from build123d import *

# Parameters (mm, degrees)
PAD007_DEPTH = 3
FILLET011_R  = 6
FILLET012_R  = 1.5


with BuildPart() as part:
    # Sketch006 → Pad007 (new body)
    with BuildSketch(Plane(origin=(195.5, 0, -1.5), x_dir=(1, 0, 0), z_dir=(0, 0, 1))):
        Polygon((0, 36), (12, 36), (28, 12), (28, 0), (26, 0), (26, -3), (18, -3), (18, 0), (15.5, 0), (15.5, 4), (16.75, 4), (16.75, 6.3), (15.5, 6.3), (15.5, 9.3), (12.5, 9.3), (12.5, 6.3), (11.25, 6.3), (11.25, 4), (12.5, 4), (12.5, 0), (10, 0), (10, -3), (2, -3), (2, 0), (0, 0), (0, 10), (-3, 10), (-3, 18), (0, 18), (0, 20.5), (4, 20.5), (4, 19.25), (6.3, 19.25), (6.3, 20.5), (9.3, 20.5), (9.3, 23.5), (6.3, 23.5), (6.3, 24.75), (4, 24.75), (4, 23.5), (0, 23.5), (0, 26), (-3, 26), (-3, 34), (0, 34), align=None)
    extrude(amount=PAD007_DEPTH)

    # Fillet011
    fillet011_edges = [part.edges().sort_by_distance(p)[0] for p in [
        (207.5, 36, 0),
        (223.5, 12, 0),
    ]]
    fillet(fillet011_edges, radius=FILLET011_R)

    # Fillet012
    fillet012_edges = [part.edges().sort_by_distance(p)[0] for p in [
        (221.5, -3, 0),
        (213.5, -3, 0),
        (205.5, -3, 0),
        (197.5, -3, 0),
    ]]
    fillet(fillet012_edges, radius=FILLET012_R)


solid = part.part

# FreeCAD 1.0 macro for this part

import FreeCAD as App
import Part
import Sketcher
from FreeCAD import Vector
Q = App.Units.Quantity


def edges_at(feature, points):
    """Names of the edges that pass closest to the given points."""
    edges = feature.Shape.Edges
    near = lambda p: min(range(len(edges)), key=lambda i: edges[i].distToShape(Part.Vertex(*p))[0])
    return sorted({f"Edge{near(p) + 1}" for p in points})

doc = App.newDocument("Part")
body = doc.addObject("PartDesign::Body", "Body")

# Sketch on XY plane
sketch1 = doc.addObject("Sketcher::SketchObject", "Sketch")
body.addObject(sketch1)
sketch1.AttachmentSupport = (doc.XY_Plane, [""])
sketch1.MapMode = "FlatFace"
sketch1.AttachmentOffset = App.Placement(Vector(0, 0, -1.5), App.Rotation())
sketch1.addGeometry(Part.LineSegment(Vector(207.5, 36, 0), Vector(195.5, 36, 0)), False)
sketch1.addGeometry(Part.LineSegment(Vector(195.5, 36, 0), Vector(195.5, 34, 0)), False)
sketch1.addGeometry(Part.LineSegment(Vector(195.5, 34, 0), Vector(192.5, 34, 0)), False)
sketch1.addGeometry(Part.LineSegment(Vector(192.5, 34, 0), Vector(192.5, 26, 0)), False)
sketch1.addGeometry(Part.LineSegment(Vector(192.5, 26, 0), Vector(195.5, 26, 0)), False)
sketch1.addGeometry(Part.LineSegment(Vector(195.5, 26, 0), Vector(195.5, 23.5, 0)), False)
sketch1.addGeometry(Part.LineSegment(Vector(195.5, 23.5, 0), Vector(199.5, 23.5, 0)), False)
sketch1.addGeometry(Part.LineSegment(Vector(199.5, 23.5, 0), Vector(199.5, 24.75, 0)), False)
sketch1.addGeometry(Part.LineSegment(Vector(199.5, 24.75, 0), Vector(201.8, 24.75, 0)), False)
sketch1.addGeometry(Part.LineSegment(Vector(201.8, 24.75, 0), Vector(201.8, 23.5, 0)), False)
sketch1.addGeometry(Part.LineSegment(Vector(201.8, 23.5, 0), Vector(204.8, 23.5, 0)), False)
sketch1.addGeometry(Part.LineSegment(Vector(204.8, 23.5, 0), Vector(204.8, 20.5, 0)), False)
sketch1.addGeometry(Part.LineSegment(Vector(204.8, 20.5, 0), Vector(201.8, 20.5, 0)), False)
sketch1.addGeometry(Part.LineSegment(Vector(201.8, 20.5, 0), Vector(201.8, 19.25, 0)), False)
sketch1.addGeometry(Part.LineSegment(Vector(201.8, 19.25, 0), Vector(199.5, 19.25, 0)), False)
sketch1.addGeometry(Part.LineSegment(Vector(199.5, 19.25, 0), Vector(199.5, 20.5, 0)), False)
sketch1.addGeometry(Part.LineSegment(Vector(199.5, 20.5, 0), Vector(195.5, 20.5, 0)), False)
sketch1.addGeometry(Part.LineSegment(Vector(195.5, 20.5, 0), Vector(195.5, 18, 0)), False)
sketch1.addGeometry(Part.LineSegment(Vector(195.5, 18, 0), Vector(192.5, 18, 0)), False)
sketch1.addGeometry(Part.LineSegment(Vector(192.5, 18, 0), Vector(192.5, 10, 0)), False)
sketch1.addGeometry(Part.LineSegment(Vector(192.5, 10, 0), Vector(195.5, 10, 0)), False)
sketch1.addGeometry(Part.LineSegment(Vector(195.5, 10, 0), Vector(195.5, 0, 0)), False)
sketch1.addGeometry(Part.LineSegment(Vector(195.5, 0, 0), Vector(197.5, 0, 0)), False)
sketch1.addGeometry(Part.LineSegment(Vector(197.5, 0, 0), Vector(197.5, -3, 0)), False)
sketch1.addGeometry(Part.LineSegment(Vector(197.5, -3, 0), Vector(205.5, -3, 0)), False)
sketch1.addGeometry(Part.LineSegment(Vector(205.5, -3, 0), Vector(205.5, 0, 0)), False)
sketch1.addGeometry(Part.LineSegment(Vector(205.5, 0, 0), Vector(208, 0, 0)), False)
sketch1.addGeometry(Part.LineSegment(Vector(208, 0, 0), Vector(208, 4, 0)), False)
sketch1.addGeometry(Part.LineSegment(Vector(208, 4, 0), Vector(206.75, 4, 0)), False)
sketch1.addGeometry(Part.LineSegment(Vector(206.75, 4, 0), Vector(206.75, 6.3, 0)), False)
sketch1.addGeometry(Part.LineSegment(Vector(206.75, 6.3, 0), Vector(208, 6.3, 0)), False)
sketch1.addGeometry(Part.LineSegment(Vector(208, 6.3, 0), Vector(208, 9.3, 0)), False)
sketch1.addGeometry(Part.LineSegment(Vector(208, 9.3, 0), Vector(211, 9.3, 0)), False)
sketch1.addGeometry(Part.LineSegment(Vector(211, 9.3, 0), Vector(211, 6.3, 0)), False)
sketch1.addGeometry(Part.LineSegment(Vector(211, 6.3, 0), Vector(212.25, 6.3, 0)), False)
sketch1.addGeometry(Part.LineSegment(Vector(212.25, 6.3, 0), Vector(212.25, 4, 0)), False)
sketch1.addGeometry(Part.LineSegment(Vector(212.25, 4, 0), Vector(211, 4, 0)), False)
sketch1.addGeometry(Part.LineSegment(Vector(211, 4, 0), Vector(211, 0, 0)), False)
sketch1.addGeometry(Part.LineSegment(Vector(211, 0, 0), Vector(213.5, 0, 0)), False)
sketch1.addGeometry(Part.LineSegment(Vector(213.5, 0, 0), Vector(213.5, -3, 0)), False)
sketch1.addGeometry(Part.LineSegment(Vector(213.5, -3, 0), Vector(221.5, -3, 0)), False)
sketch1.addGeometry(Part.LineSegment(Vector(221.5, -3, 0), Vector(221.5, 0, 0)), False)
sketch1.addGeometry(Part.LineSegment(Vector(221.5, 0, 0), Vector(223.5, 0, 0)), False)
sketch1.addGeometry(Part.LineSegment(Vector(223.5, 0, 0), Vector(223.5, 12, 0)), False)
sketch1.addGeometry(Part.LineSegment(Vector(223.5, 12, 0), Vector(207.5, 36, 0)), False)
sketch1.addConstraint(Sketcher.Constraint("Coincident", 0, 2, 1, 1))
sketch1.addConstraint(Sketcher.Constraint("Coincident", 1, 2, 2, 1))
sketch1.addConstraint(Sketcher.Constraint("Coincident", 2, 2, 3, 1))
sketch1.addConstraint(Sketcher.Constraint("Coincident", 3, 2, 4, 1))
sketch1.addConstraint(Sketcher.Constraint("Coincident", 4, 2, 5, 1))
sketch1.addConstraint(Sketcher.Constraint("Coincident", 5, 2, 6, 1))
sketch1.addConstraint(Sketcher.Constraint("Coincident", 6, 2, 7, 1))
sketch1.addConstraint(Sketcher.Constraint("Coincident", 7, 2, 8, 1))
sketch1.addConstraint(Sketcher.Constraint("Coincident", 8, 2, 9, 1))
sketch1.addConstraint(Sketcher.Constraint("Coincident", 9, 2, 10, 1))
sketch1.addConstraint(Sketcher.Constraint("Coincident", 10, 2, 11, 1))
sketch1.addConstraint(Sketcher.Constraint("Coincident", 11, 2, 12, 1))
sketch1.addConstraint(Sketcher.Constraint("Coincident", 12, 2, 13, 1))
sketch1.addConstraint(Sketcher.Constraint("Coincident", 13, 2, 14, 1))
sketch1.addConstraint(Sketcher.Constraint("Coincident", 14, 2, 15, 1))
sketch1.addConstraint(Sketcher.Constraint("Coincident", 15, 2, 16, 1))
sketch1.addConstraint(Sketcher.Constraint("Coincident", 16, 2, 17, 1))
sketch1.addConstraint(Sketcher.Constraint("Coincident", 17, 2, 18, 1))
sketch1.addConstraint(Sketcher.Constraint("Coincident", 18, 2, 19, 1))
sketch1.addConstraint(Sketcher.Constraint("Coincident", 19, 2, 20, 1))
sketch1.addConstraint(Sketcher.Constraint("Coincident", 20, 2, 21, 1))
sketch1.addConstraint(Sketcher.Constraint("Coincident", 21, 2, 22, 1))
sketch1.addConstraint(Sketcher.Constraint("Coincident", 22, 2, 23, 1))
sketch1.addConstraint(Sketcher.Constraint("Coincident", 23, 2, 24, 1))
sketch1.addConstraint(Sketcher.Constraint("Coincident", 24, 2, 25, 1))
sketch1.addConstraint(Sketcher.Constraint("Coincident", 25, 2, 26, 1))
sketch1.addConstraint(Sketcher.Constraint("Coincident", 26, 2, 27, 1))
sketch1.addConstraint(Sketcher.Constraint("Coincident", 27, 2, 28, 1))
sketch1.addConstraint(Sketcher.Constraint("Coincident", 28, 2, 29, 1))
sketch1.addConstraint(Sketcher.Constraint("Coincident", 29, 2, 30, 1))
sketch1.addConstraint(Sketcher.Constraint("Coincident", 30, 2, 31, 1))
sketch1.addConstraint(Sketcher.Constraint("Coincident", 31, 2, 32, 1))
sketch1.addConstraint(Sketcher.Constraint("Coincident", 32, 2, 33, 1))
sketch1.addConstraint(Sketcher.Constraint("Coincident", 33, 2, 34, 1))
sketch1.addConstraint(Sketcher.Constraint("Coincident", 34, 2, 35, 1))
sketch1.addConstraint(Sketcher.Constraint("Coincident", 35, 2, 36, 1))
sketch1.addConstraint(Sketcher.Constraint("Coincident", 36, 2, 37, 1))
sketch1.addConstraint(Sketcher.Constraint("Coincident", 37, 2, 38, 1))
sketch1.addConstraint(Sketcher.Constraint("Coincident", 38, 2, 39, 1))
sketch1.addConstraint(Sketcher.Constraint("Coincident", 39, 2, 40, 1))
sketch1.addConstraint(Sketcher.Constraint("Coincident", 40, 2, 41, 1))
sketch1.addConstraint(Sketcher.Constraint("Coincident", 41, 2, 42, 1))
sketch1.addConstraint(Sketcher.Constraint("Coincident", 42, 2, 43, 1))
sketch1.addConstraint(Sketcher.Constraint("Coincident", 43, 2, 44, 1))
sketch1.addConstraint(Sketcher.Constraint("Coincident", 44, 2, 0, 1))
sketch1.addConstraint(Sketcher.Constraint("Horizontal", 0))
sketch1.addConstraint(Sketcher.Constraint("Vertical", 1))
sketch1.addConstraint(Sketcher.Constraint("Horizontal", 2))
sketch1.addConstraint(Sketcher.Constraint("Vertical", 3))
sketch1.addConstraint(Sketcher.Constraint("Horizontal", 4))
sketch1.addConstraint(Sketcher.Constraint("Vertical", 5))
sketch1.addConstraint(Sketcher.Constraint("Horizontal", 6))
sketch1.addConstraint(Sketcher.Constraint("Vertical", 7))
sketch1.addConstraint(Sketcher.Constraint("Horizontal", 8))
sketch1.addConstraint(Sketcher.Constraint("Vertical", 9))
sketch1.addConstraint(Sketcher.Constraint("Horizontal", 10))
sketch1.addConstraint(Sketcher.Constraint("Vertical", 11))
sketch1.addConstraint(Sketcher.Constraint("Horizontal", 12))
sketch1.addConstraint(Sketcher.Constraint("Vertical", 13))
sketch1.addConstraint(Sketcher.Constraint("Horizontal", 14))
sketch1.addConstraint(Sketcher.Constraint("Vertical", 15))
sketch1.addConstraint(Sketcher.Constraint("Horizontal", 16))
sketch1.addConstraint(Sketcher.Constraint("Vertical", 17))
sketch1.addConstraint(Sketcher.Constraint("Horizontal", 18))
sketch1.addConstraint(Sketcher.Constraint("Vertical", 19))
sketch1.addConstraint(Sketcher.Constraint("Horizontal", 20))
sketch1.addConstraint(Sketcher.Constraint("Vertical", 21))
sketch1.addConstraint(Sketcher.Constraint("Horizontal", 22))
sketch1.addConstraint(Sketcher.Constraint("Vertical", 23))
sketch1.addConstraint(Sketcher.Constraint("Horizontal", 24))
sketch1.addConstraint(Sketcher.Constraint("Vertical", 25))
sketch1.addConstraint(Sketcher.Constraint("Horizontal", 26))
sketch1.addConstraint(Sketcher.Constraint("Vertical", 27))
sketch1.addConstraint(Sketcher.Constraint("Horizontal", 28))
sketch1.addConstraint(Sketcher.Constraint("Vertical", 29))
sketch1.addConstraint(Sketcher.Constraint("Horizontal", 30))
sketch1.addConstraint(Sketcher.Constraint("Vertical", 31))
sketch1.addConstraint(Sketcher.Constraint("Horizontal", 32))
sketch1.addConstraint(Sketcher.Constraint("Vertical", 33))
sketch1.addConstraint(Sketcher.Constraint("Horizontal", 34))
sketch1.addConstraint(Sketcher.Constraint("Vertical", 35))
sketch1.addConstraint(Sketcher.Constraint("Horizontal", 36))
sketch1.addConstraint(Sketcher.Constraint("Vertical", 37))
sketch1.addConstraint(Sketcher.Constraint("Horizontal", 38))
sketch1.addConstraint(Sketcher.Constraint("Vertical", 39))
sketch1.addConstraint(Sketcher.Constraint("Horizontal", 40))
sketch1.addConstraint(Sketcher.Constraint("Vertical", 41))
sketch1.addConstraint(Sketcher.Constraint("Horizontal", 42))
sketch1.addConstraint(Sketcher.Constraint("Vertical", 43))
sketch1.addConstraint(Sketcher.Constraint("PointOnObject", 21, 2, -1))
sketch1.addConstraint(Sketcher.Constraint("PointOnObject", 25, 2, -1))
sketch1.addConstraint(Sketcher.Constraint("PointOnObject", 37, 2, -1))
sketch1.addConstraint(Sketcher.Constraint("PointOnObject", 41, 2, -1))
sketch1.addConstraint(Sketcher.Constraint("Horizontal", 6, 2, 9, 2))
sketch1.addConstraint(Sketcher.Constraint("Horizontal", 12, 2, 15, 2))
sketch1.addConstraint(Sketcher.Constraint("Horizontal", 30, 2, 33, 2))
sketch1.addConstraint(Sketcher.Constraint("Horizontal", 28, 2, 35, 2))
sketch1.addConstraint(Sketcher.Constraint("Horizontal", 24, 2, 39, 2))
sketch1.addConstraint(Sketcher.Constraint("Vertical", 1, 2, 4, 2))
sketch1.addConstraint(Sketcher.Constraint("Vertical", 9, 2, 12, 2))
sketch1.addConstraint(Sketcher.Constraint("Vertical", 7, 2, 14, 2))
sketch1.addConstraint(Sketcher.Constraint("Vertical", 5, 2, 16, 2))
sketch1.addConstraint(Sketcher.Constraint("Vertical", 3, 2, 18, 2))
sketch1.addConstraint(Sketcher.Constraint("Vertical", 17, 2, 20, 2))
sketch1.addConstraint(Sketcher.Constraint("Vertical", 27, 2, 30, 2))
sketch1.addConstraint(Sketcher.Constraint("Vertical", 33, 2, 36, 2))
sketch1.addConstraint(Sketcher.Constraint("Equal", 4, 10))
sketch1.addConstraint(Sketcher.Constraint("Equal", 20, 32))
sketch1.addConstraint(Sketcher.Constraint("Equal", 30, 34))
sketch1.addConstraint(Sketcher.Constraint("Equal", 26, 38))
sketch1.addConstraint(Sketcher.Constraint("Equal", 24, 40))
sketch1.addConstraint(Sketcher.Constraint("Equal", 22, 42))
sketch1.addConstraint(Sketcher.Constraint("Equal", 42, 1))
sketch1.addConstraint(Sketcher.Constraint("Equal", 40, 3))
sketch1.addConstraint(Sketcher.Constraint("Equal", 38, 5))
sketch1.addConstraint(Sketcher.Constraint("Equal", 36, 7))
sketch1.addConstraint(Sketcher.Constraint("Equal", 32, 11))
sketch1.addConstraint(Sketcher.Constraint("Equal", 9, 13))
sketch1.addConstraint(Sketcher.Constraint("Equal", 5, 17))
sketch1.addConstraint(Sketcher.Constraint("Equal", 3, 19))
sketch1.addConstraint(Sketcher.Constraint("Equal", 11, 23))
sketch1.addConstraint(Sketcher.Constraint("Equal", 16, 27))
sketch1.addConstraint(Sketcher.Constraint("Equal", 14, 29))
sketch1.addConstraint(Sketcher.Constraint("Equal", 25, 31))
sketch1.addConstraint(Sketcher.Constraint("Equal", 0, 43))
sketch1.addConstraint(Sketcher.Constraint("DistanceX", 0, 2, 0, 1, Q("12 mm")))
sketch1.addConstraint(Sketcher.Constraint("DistanceX", 2, 2, 2, 1, Q("3 mm")))
sketch1.addConstraint(Sketcher.Constraint("DistanceX", 6, 1, 6, 2, Q("4 mm")))
sketch1.addConstraint(Sketcher.Constraint("DistanceX", 22, 1, 22, 2, Q("2 mm")))
sketch1.addConstraint(Sketcher.Constraint("DistanceX", 24, 1, 24, 2, Q("8 mm")))
sketch1.addConstraint(Sketcher.Constraint("DistanceY", 21, 2, 21, 1, Q("10 mm")))
sketch1.addConstraint(Sketcher.Constraint("DistanceX", 8, 1, 8, 2, Q("2.3 mm")))
sketch1.addConstraint(Sketcher.Constraint("DistanceX", 26, 1, 26, 2, Q("2.5 mm")))
sketch1.addConstraint(Sketcher.Constraint("DistanceX", -1, 1, 26, 2, Q("208 mm")))
sketch1.addConstraint(Sketcher.Constraint("DistanceX", 28, 2, 28, 1, Q("1.25 mm")))
pad1 = doc.addObject("PartDesign::Pad", "Pad")
body.addObject(pad1)
pad1.Profile = sketch1
pad1.Length = 3
doc.recompute()

fillet = doc.addObject("PartDesign::Fillet", "Fillet")
body.addObject(fillet)
fillet.Base = (pad1, edges_at(pad1, [(207.5, 36, 0), (223.5, 12, 0)]))
fillet.Radius = 6
doc.recompute()

fillet2 = doc.addObject("PartDesign::Fillet", "Fillet001")
body.addObject(fillet2)
fillet2.Base = (fillet, edges_at(fillet, [
    (221.5, -3, 0),
    (213.5, -3, 0),
    (205.5, -3, 0),
    (197.5, -3, 0),
]))
fillet2.Radius = 1.5

doc.recompute()
